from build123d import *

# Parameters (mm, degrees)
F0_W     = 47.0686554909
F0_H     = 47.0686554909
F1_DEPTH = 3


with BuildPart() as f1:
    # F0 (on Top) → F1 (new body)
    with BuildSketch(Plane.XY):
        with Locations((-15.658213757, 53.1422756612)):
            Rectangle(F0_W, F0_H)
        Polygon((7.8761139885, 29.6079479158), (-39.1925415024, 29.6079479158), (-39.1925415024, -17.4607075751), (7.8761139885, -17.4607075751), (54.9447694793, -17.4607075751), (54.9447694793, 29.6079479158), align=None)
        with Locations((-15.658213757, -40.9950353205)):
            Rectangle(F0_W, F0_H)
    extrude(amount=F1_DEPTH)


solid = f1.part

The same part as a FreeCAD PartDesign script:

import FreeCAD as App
import Part
import Sketcher


def add_polygon(sketch, points):
    """Adds a closed chain of lines whose ends are joined by coincident constraints."""
    first, n = sketch.GeometryCount, len(points)
    for a, b in zip(points, points[1:] + points[:1]):
        sketch.addGeometry(Part.LineSegment(App.Vector(*a, 0), App.Vector(*b, 0)), False)
    for i in range(n):
        sketch.addConstraint(Sketcher.Constraint("Coincident", first + i, 2, first + (i + 1) % n, 1))

doc = App.newDocument("Part")
body = doc.addObject("PartDesign::Body", "Body")

sketch1 = body.newObject("Sketcher::SketchObject", "Sketch")
sketch1.AttachmentSupport = (doc.getObject("XY_Plane"), [""])
sketch1.MapMode = "FlatFace"
add_polygon(sketch1, [(-39.192542, 76.676603), (-39.192542, -64.529363), (7.876114, -64.529363), (7.876114, -17.460708), (54.944769, -17.460708), (54.944769, 29.607948), (7.876114, 29.607948), (7.876114, 76.676603)])
sketch1.addConstraint([
    Sketcher.Constraint("Vertical", 0),
    Sketcher.Constraint("Horizontal", 1),
    Sketcher.Constraint("Vertical", 2),
    Sketcher.Constraint("Horizontal", 3),
    Sketcher.Constraint("Vertical", 4),
    Sketcher.Constraint("Horizontal", 5),
    Sketcher.Constraint("Vertical", 6),
    Sketcher.Constraint("Horizontal", 7),
    Sketcher.Constraint("Vertical", 2, 2, 5, 2),
    Sketcher.Constraint("Equal", 1, 3),
    Sketcher.Constraint("Equal", 7, 2),
    Sketcher.Constraint("Equal", 2, 4),
    Sketcher.Constraint("Equal", 4, 6),
    Sketcher.Constraint("DistanceX", 1, 1, 1, 2, 47.068655),
    Sketcher.Constraint("DistanceX", 0, 2, -1, 1, 39.192542),
    Sketcher.Constraint("DistanceY", 0, 2, -1, 1, 64.529363),
])
pad1 = body.newObject("PartDesign::Pad", "Pad")
pad1.Profile = sketch1
pad1.Length = 3

doc.recompute()
